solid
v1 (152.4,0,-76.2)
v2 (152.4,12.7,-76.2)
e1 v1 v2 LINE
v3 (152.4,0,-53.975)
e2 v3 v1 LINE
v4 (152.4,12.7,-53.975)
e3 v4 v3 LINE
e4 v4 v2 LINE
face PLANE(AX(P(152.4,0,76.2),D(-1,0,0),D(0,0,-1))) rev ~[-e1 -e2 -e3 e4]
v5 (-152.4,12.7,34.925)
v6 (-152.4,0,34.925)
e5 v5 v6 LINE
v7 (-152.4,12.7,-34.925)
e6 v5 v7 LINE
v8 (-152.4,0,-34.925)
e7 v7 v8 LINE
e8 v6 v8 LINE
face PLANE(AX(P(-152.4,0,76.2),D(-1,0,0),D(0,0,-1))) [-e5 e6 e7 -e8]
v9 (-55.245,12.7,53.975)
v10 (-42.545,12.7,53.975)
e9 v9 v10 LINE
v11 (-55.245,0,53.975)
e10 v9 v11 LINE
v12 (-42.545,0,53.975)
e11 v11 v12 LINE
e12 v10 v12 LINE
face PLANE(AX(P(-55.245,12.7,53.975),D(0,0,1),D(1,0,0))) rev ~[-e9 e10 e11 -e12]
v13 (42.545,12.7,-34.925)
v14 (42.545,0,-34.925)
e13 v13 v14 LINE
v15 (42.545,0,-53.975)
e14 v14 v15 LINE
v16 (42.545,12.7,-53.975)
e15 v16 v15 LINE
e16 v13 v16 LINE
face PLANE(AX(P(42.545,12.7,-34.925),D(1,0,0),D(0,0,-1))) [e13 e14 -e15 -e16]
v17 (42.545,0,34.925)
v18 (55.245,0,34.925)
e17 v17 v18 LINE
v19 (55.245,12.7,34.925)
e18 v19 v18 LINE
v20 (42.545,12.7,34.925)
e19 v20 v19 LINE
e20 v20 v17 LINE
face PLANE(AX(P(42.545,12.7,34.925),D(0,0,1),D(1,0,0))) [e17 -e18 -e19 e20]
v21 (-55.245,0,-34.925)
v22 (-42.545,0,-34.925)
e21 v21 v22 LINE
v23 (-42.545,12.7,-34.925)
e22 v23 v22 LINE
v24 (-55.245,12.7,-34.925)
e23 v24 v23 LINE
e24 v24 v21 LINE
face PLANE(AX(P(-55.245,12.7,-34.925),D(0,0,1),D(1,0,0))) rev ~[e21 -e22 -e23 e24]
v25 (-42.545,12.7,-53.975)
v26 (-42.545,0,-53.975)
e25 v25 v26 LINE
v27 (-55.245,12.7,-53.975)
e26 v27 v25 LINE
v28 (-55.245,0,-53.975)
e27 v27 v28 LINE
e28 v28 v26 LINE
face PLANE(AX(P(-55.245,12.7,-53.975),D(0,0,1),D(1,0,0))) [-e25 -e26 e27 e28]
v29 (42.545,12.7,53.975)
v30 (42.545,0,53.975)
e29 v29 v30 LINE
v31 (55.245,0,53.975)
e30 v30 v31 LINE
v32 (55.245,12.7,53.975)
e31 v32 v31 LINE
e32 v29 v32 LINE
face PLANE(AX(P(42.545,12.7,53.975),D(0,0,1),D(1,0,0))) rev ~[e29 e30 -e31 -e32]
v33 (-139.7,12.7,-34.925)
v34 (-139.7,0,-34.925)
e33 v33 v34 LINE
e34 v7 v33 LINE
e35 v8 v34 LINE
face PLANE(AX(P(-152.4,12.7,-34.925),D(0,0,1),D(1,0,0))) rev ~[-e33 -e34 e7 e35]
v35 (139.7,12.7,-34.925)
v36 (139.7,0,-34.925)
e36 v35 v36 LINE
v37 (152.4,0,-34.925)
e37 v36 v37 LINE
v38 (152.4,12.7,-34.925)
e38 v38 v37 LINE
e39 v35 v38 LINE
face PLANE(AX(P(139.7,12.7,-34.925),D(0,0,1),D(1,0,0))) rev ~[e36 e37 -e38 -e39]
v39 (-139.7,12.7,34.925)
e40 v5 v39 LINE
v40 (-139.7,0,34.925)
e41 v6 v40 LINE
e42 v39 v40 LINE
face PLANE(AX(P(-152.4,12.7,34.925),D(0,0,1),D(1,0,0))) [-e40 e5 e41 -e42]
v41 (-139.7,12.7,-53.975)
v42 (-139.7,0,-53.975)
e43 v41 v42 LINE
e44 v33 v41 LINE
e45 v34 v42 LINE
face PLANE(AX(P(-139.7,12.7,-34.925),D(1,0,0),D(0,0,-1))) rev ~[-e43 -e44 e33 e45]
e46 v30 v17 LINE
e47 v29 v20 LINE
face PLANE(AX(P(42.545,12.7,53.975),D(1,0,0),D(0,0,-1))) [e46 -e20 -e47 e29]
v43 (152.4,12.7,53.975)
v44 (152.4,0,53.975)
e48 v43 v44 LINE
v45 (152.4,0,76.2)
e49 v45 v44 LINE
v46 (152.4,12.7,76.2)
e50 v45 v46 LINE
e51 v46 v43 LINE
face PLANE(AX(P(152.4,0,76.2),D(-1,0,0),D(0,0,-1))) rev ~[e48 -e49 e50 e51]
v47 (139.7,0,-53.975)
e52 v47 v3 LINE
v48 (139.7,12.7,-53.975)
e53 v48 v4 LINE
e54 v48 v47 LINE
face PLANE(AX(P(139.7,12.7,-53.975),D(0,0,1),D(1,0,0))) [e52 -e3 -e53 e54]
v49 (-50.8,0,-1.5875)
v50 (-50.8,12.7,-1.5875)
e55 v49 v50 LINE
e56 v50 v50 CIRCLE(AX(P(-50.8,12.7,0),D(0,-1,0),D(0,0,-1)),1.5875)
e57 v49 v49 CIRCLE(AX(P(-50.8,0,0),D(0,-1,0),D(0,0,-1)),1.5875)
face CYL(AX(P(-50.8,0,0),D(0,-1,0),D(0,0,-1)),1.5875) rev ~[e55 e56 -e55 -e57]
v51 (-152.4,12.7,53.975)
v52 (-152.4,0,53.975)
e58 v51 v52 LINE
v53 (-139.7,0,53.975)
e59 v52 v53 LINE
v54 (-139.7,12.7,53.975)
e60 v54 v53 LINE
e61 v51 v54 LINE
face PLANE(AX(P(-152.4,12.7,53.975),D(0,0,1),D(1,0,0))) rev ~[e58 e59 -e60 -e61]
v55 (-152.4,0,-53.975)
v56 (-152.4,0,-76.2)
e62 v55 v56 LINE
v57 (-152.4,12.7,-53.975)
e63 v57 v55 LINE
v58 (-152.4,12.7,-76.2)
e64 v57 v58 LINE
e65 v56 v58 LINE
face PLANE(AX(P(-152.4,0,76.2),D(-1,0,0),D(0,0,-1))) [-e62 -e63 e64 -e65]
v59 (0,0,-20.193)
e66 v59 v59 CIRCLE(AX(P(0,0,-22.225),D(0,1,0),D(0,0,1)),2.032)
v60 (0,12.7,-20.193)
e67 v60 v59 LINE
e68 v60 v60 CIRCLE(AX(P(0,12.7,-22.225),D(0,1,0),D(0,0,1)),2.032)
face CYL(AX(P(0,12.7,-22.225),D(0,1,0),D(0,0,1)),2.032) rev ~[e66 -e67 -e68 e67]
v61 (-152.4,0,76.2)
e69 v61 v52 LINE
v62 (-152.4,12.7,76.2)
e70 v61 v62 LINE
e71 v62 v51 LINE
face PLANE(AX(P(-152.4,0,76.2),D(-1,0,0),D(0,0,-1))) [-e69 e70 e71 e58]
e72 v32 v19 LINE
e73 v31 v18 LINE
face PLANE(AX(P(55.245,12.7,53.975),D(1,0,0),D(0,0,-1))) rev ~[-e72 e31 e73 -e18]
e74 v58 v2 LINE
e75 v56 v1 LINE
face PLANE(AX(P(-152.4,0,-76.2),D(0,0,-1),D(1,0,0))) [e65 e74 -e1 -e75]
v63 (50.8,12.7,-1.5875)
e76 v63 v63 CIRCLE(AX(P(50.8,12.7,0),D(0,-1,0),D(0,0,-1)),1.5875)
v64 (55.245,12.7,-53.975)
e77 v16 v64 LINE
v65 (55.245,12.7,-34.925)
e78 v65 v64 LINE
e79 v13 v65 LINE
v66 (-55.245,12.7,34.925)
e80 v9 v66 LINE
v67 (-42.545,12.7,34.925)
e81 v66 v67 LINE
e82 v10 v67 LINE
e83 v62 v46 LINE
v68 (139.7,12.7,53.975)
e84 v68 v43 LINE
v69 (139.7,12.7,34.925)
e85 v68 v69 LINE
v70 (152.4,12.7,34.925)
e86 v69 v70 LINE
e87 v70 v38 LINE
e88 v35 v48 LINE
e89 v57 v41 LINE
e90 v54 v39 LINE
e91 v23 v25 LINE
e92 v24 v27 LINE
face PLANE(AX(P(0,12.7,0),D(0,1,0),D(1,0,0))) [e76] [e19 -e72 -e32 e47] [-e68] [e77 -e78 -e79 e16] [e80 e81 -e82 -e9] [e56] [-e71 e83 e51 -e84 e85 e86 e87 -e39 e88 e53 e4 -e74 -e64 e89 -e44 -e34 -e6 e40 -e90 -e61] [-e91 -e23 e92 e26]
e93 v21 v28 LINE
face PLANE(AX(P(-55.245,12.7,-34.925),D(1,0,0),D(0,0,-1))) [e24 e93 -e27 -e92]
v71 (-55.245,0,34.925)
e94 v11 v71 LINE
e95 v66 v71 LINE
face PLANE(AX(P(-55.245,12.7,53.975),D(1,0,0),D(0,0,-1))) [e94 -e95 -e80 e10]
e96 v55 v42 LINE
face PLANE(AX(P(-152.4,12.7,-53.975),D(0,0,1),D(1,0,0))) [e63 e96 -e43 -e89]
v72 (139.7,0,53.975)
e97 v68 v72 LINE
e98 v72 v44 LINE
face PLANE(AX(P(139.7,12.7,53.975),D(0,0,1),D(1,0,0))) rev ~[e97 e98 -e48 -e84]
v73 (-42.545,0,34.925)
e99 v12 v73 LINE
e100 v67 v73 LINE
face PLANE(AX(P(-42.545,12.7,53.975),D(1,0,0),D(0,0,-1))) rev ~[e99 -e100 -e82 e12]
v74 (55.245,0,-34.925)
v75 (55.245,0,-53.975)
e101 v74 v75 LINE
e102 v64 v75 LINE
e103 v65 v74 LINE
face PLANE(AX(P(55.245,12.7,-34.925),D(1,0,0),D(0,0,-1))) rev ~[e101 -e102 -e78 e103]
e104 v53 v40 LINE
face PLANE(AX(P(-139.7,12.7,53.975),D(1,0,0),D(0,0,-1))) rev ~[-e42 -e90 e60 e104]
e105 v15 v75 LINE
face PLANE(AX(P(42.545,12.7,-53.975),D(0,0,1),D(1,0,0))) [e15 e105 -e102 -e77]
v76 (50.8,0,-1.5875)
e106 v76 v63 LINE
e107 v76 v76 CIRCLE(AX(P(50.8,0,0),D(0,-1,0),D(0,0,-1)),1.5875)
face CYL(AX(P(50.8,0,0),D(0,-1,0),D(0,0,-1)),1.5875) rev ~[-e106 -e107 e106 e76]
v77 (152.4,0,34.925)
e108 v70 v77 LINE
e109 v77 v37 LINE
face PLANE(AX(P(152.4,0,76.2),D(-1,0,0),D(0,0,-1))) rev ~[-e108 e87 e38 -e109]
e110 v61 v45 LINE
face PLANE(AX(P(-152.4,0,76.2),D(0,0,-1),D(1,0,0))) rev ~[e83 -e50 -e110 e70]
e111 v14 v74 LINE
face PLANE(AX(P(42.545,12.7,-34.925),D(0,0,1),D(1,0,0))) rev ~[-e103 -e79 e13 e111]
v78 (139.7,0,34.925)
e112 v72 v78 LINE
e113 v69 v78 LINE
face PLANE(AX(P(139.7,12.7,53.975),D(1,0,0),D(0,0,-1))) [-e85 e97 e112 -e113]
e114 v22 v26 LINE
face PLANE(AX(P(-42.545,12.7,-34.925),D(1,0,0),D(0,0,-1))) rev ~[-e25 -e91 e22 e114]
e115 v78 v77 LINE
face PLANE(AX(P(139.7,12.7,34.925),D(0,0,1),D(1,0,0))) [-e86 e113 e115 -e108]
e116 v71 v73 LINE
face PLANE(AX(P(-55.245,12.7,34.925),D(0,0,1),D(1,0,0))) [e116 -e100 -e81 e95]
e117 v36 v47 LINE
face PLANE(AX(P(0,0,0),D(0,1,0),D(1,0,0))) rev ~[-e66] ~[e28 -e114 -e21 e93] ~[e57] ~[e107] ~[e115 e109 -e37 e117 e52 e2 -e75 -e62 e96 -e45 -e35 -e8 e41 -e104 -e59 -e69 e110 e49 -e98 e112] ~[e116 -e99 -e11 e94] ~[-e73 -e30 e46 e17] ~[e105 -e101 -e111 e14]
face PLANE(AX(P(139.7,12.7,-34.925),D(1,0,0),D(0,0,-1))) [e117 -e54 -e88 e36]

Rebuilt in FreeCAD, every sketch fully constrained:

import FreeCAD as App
import Part
import Sketcher
from FreeCAD import Vector
Q = App.Units.Quantity


def add_polygon(sketch, points):
    """Adds a closed chain of lines whose ends are joined by coincident constraints."""
    first, n = sketch.GeometryCount, len(points)
    for a, b in zip(points, points[1:] + points[:1]):
        sketch.addGeometry(Part.LineSegment(App.Vector(*a, 0), App.Vector(*b, 0)), False)
    for i in range(n):
        sketch.addConstraint(Sketcher.Constraint("Coincident", first + i, 2, first + (i + 1) % n, 1))

doc = App.newDocument("Part")
params = doc.addObject("Spreadsheet::Sheet", "Params")
for row, (alias, value) in enumerate([
    ("sketch1_width", "12 in"),
    ("sketch1_height", "6 in"),
    ("pad1_length", "0.5 in"),
    ("sketch2_width", "0.5 in"),
    ("sketch2_height", "0.75 in"),
    ("sketch3_diameter", "0.125 in"),
    ("sketch4_diameter", "0.16 in"),
], start=1):
    params.set(f"A{row}", alias)
    params.set(f"B{row}", "=" + value)
    params.setAlias(f"B{row}", alias)

body = doc.addObject("PartDesign::Body", "Body")

sketch1 = doc.addObject("Sketcher::SketchObject", "Sketch")
body.addObject(sketch1)
sketch1.AttachmentSupport = (doc.XZ_Plane, [""])
sketch1.MapMode = "FlatFace"
add_polygon(sketch1, [(-152, -76), (-152, 76), (152, 76), (152, -76)])
sketch1.addConstraint([
    Sketcher.Constraint("Vertical", 0),
    Sketcher.Constraint("Horizontal", 1),
    Sketcher.Constraint("Vertical", 2),
    Sketcher.Constraint("Horizontal", 3),
    Sketcher.Constraint("Symmetric", 0, 2, 2, 2, -1, 1),
    Sketcher.Constraint("DistanceX", 1, 1, 1, 2, Q("12 in")),
    Sketcher.Constraint("DistanceY", 0, 1, 0, 2, Q("6 in")),
])
sketch1.setExpression("Constraints[9]", "Params.sketch1_width")
sketch1.setExpression("Constraints[10]", "Params.sketch1_height")
pad1 = doc.addObject("PartDesign::Pad", "Pad")
body.addObject(pad1)
pad1.Profile = sketch1
pad1.setExpression("Length", "Params.pad1_length")
pad1.Reversed = True

sketch2 = doc.addObject("Sketcher::SketchObject", "Sketch001")
body.addObject(sketch2)
sketch2.AttachmentSupport = (doc.XZ_Plane, [""])
sketch2.MapMode = "FlatFace"
sketch2.AttachmentOffset = App.Placement(Vector(0, 0, -0.5 * 25.4), App.Rotation())
add_polygon(sketch2, [(-55, -54), (-55, -35), (-43, -35), (-43, -54)])
add_polygon(sketch2, [(43, -54), (43, -35), (55, -35), (55, -54)])
add_polygon(sketch2, [(-55, 35), (-55, 54), (-43, 54), (-43, 35)])
add_polygon(sketch2, [(43, 35), (43, 54), (55, 54), (55, 35)])
add_polygon(sketch2, [(140, -54), (140, -35), (152, -35), (152, -54)])
add_polygon(sketch2, [(-152, -54), (-152, -35), (-140, -35), (-140, -54)])
add_polygon(sketch2, [(140, 35), (140, 54), (152, 54), (152, 35)])
add_polygon(sketch2, [(-152, 35), (-152, 54), (-140, 54), (-140, 35)])
sketch2.addConstraint([
    Sketcher.Constraint("Vertical", 0),
    Sketcher.Constraint("Horizontal", 1),
    Sketcher.Constraint("Vertical", 2),
    Sketcher.Constraint("Horizontal", 3),
    Sketcher.Constraint("Vertical", 4),
    Sketcher.Constraint("Horizontal", 5),
    Sketcher.Constraint("Vertical", 6),
    Sketcher.Constraint("Horizontal", 7),
    Sketcher.Constraint("Vertical", 8),
    Sketcher.Constraint("Horizontal", 9),
    Sketcher.Constraint("Vertical", 10),
    Sketcher.Constraint("Horizontal", 11),
    Sketcher.Constraint("Vertical", 12),
    Sketcher.Constraint("Horizontal", 13),
    Sketcher.Constraint("Vertical", 14),
    Sketcher.Constraint("Horizontal", 15),
    Sketcher.Constraint("Vertical", 16),
    Sketcher.Constraint("Horizontal", 17),
    Sketcher.Constraint("Vertical", 18),
    Sketcher.Constraint("Horizontal", 19),
    Sketcher.Constraint("Vertical", 20),
    Sketcher.Constraint("Horizontal", 21),
    Sketcher.Constraint("Vertical", 22),
    Sketcher.Constraint("Horizontal", 23),
    Sketcher.Constraint("Vertical", 24),
    Sketcher.Constraint("Horizontal", 25),
    Sketcher.Constraint("Vertical", 26),
    Sketcher.Constraint("Horizontal", 27),
    Sketcher.Constraint("Vertical", 28),
    Sketcher.Constraint("Horizontal", 29),
    Sketcher.Constraint("Vertical", 30),
    Sketcher.Constraint("Horizontal", 31),
    Sketcher.Constraint("Symmetric", 6, 2, 8, 2, -1, 1),
    Sketcher.Constraint("Symmetric", 4, 2, 10, 2, -1, 1),
    Sketcher.Constraint("Symmetric", 2, 2, 12, 2, -1, 1),
    Sketcher.Constraint("Symmetric", 0, 2, 14, 2, -1, 1),
    Sketcher.Constraint("Symmetric", 22, 2, 24, 2, -1, 1),
    Sketcher.Constraint("Symmetric", 20, 2, 26, 2, -1, 1),
    Sketcher.Constraint("Symmetric", 18, 2, 28, 2, -1, 1),
    Sketcher.Constraint("Symmetric", 16, 2, 30, 2, -1, 1),
    Sketcher.Constraint("Symmetric", 1, 2, 4, 2, -2),
    Sketcher.Constraint("Symmetric", 3, 2, 6, 2, -2),
    Sketcher.Constraint("Symmetric", 17, 2, 20, 2, -2),
    Sketcher.Constraint("Symmetric", 19, 2, 22, 2, -2),
    Sketcher.Constraint("Horizontal", 5, 2, 16, 2),
    Sketcher.Constraint("Horizontal", 7, 2, 18, 2),
    Sketcher.Constraint("Equal", 15, 17),
    Sketcher.Constraint("DistanceX", 1, 1, 1, 2, Q("0.5 in")),
    Sketcher.Constraint("DistanceX", -1, 1, 17, 2, Q("6 in")),
    Sketcher.Constraint("DistanceY", 0, 1, 0, 2, Q("0.75 in")),
    Sketcher.Constraint("DistanceY", 0, 2, 8, 2, Q("3.5 in")),
    Sketcher.Constraint("DistanceX", 1, 2, 4, 2, Q("3.35 in")),
])
sketch2.setExpression("Constraints[79]", "Params.sketch2_width")
sketch2.setExpression("Constraints[81]", "Params.sketch2_height")
pocket1 = doc.addObject("PartDesign::Pocket", "Pocket")
body.addObject(pocket1)
pocket1.Profile = sketch2
pocket1.Type = "ThroughAll"
pocket1.Reversed = True

sketch3 = doc.addObject("Sketcher::SketchObject", "Sketch002")
body.addObject(sketch3)
sketch3.AttachmentSupport = (doc.XZ_Plane, [""])
sketch3.MapMode = "FlatFace"
sketch3.addGeometry([
    Part.Circle(Vector(50.8, 0, 0), Vector(0, 0, 1), 1.6),
    Part.Circle(Vector(-50.8, 0, 0), Vector(0, 0, 1), 1.6),
], False)
sketch3.addConstraint([
    Sketcher.Constraint("Equal", 0, 1),
    Sketcher.Constraint("Symmetric", 0, 3, 1, 3, -1, 1),
    Sketcher.Constraint("PointOnObject", 0, 3, -1),
    Sketcher.Constraint("Diameter", 0, Q("0.125 in")),
    Sketcher.Constraint("DistanceX", -1, 1, 0, 3, Q("2 in")),
])
sketch3.setExpression("Constraints[3]", "Params.sketch3_diameter")
pocket2 = doc.addObject("PartDesign::Pocket", "Pocket001")
body.addObject(pocket2)
pocket2.Profile = sketch3
pocket2.Type = "ThroughAll"

sketch4 = doc.addObject("Sketcher::SketchObject", "Sketch003")
body.addObject(sketch4)
sketch4.AttachmentSupport = (doc.XZ_Plane, [""])
sketch4.MapMode = "FlatFace"
sketch4.AttachmentOffset = App.Placement(Vector(0, 0, -0.5 * 25.4), App.Rotation())
sketch4.addGeometry(Part.Circle(Vector(0, -22.2, 0), Vector(0, 0, 1), 2), False)
sketch4.addConstraint([
    Sketcher.Constraint("PointOnObject", 0, 3, -2),
    Sketcher.Constraint("Diameter", 0, Q("0.16 in")),
    Sketcher.Constraint("DistanceY", 0, 3, -1, 1, Q("0.875 in")),
])
sketch4.setExpression("Constraints[1]", "Params.sketch4_diameter")
pocket3 = doc.addObject("PartDesign::Pocket", "Pocket002")
body.addObject(pocket3)
pocket3.Profile = sketch4
pocket3.Type = "ThroughAll"
pocket3.Reversed = True

doc.recompute()
